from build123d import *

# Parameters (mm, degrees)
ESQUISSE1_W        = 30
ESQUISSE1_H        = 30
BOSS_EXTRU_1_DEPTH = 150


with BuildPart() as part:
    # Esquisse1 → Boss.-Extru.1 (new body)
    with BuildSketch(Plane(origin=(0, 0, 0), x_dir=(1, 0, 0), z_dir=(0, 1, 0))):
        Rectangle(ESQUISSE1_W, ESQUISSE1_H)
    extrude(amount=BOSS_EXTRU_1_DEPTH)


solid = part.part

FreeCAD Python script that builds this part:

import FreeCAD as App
import Part
import Sketcher

V = App.Vector


def add_polygon(sketch, points):
    """Adds a closed chain of lines whose ends are joined by coincident constraints."""
    first, n = sketch.GeometryCount, len(points)
    for a, b in zip(points, points[1:] + points[:1]):
        sketch.addGeometry(Part.LineSegment(App.Vector(*a, 0), App.Vector(*b, 0)), False)
    for i in range(n):
        sketch.addConstraint(Sketcher.Constraint("Coincident", first + i, 2, first + (i + 1) % n, 1))

doc = App.newDocument("Part")
body = doc.addObject("PartDesign::Body", "Body")

# Sketch on XZ plane
sketch1 = body.newObject("Sketcher::SketchObject", "Sketch")
sketch1.AttachmentSupport = (doc.getObject("XZ_Plane"), [""])
sketch1.MapMode = "FlatFace"
add_polygon(sketch1, [(-15, -15), (-15, 15), (15, 15), (15, -15)])  # lines 0-3
sketch1.addConstraint([
    Sketcher.Constraint("Vertical", 0),
    Sketcher.Constraint("Horizontal", 1),
    Sketcher.Constraint("Vertical", 2),
    Sketcher.Constraint("Horizontal", 3),
    Sketcher.Constraint("Symmetric", 0, 2, 2, 2, -1, 1),
    Sketcher.Constraint("Equal", 3, 0),
    Sketcher.Constraint("DistanceX", 1, 1, 1, 2, 30.0),
])
pad1 = body.newObject("PartDesign::Pad", "Pad")
pad1.Profile = sketch1
pad1.Length = 150
pad1.Reversed = True

doc.recompute()
